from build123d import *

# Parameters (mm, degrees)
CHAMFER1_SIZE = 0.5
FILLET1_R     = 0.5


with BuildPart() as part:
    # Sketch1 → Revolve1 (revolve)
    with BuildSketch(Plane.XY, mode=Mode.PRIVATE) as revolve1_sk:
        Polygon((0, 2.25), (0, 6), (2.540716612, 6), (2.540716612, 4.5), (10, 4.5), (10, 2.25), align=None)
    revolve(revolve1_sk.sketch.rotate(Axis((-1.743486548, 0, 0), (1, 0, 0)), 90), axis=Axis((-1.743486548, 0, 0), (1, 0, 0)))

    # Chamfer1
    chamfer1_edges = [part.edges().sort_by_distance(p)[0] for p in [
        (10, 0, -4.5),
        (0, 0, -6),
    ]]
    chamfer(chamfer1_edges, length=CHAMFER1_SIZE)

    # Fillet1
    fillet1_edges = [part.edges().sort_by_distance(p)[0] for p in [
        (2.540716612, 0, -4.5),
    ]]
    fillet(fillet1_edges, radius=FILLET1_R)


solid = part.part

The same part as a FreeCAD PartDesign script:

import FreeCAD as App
import Part
import Sketcher


def edges_at(feature, points):
    """Names of the edges that pass closest to the given points."""
    edges = feature.Shape.Edges
    near = lambda p: min(range(len(edges)), key=lambda i: edges[i].distToShape(Part.Vertex(*p))[0])
    return sorted({f"Edge{near(p) + 1}" for p in points})


def add_polygon(sketch, points):
    """Adds a closed chain of lines whose ends are joined by coincident constraints."""
    first, n = sketch.GeometryCount, len(points)
    for a, b in zip(points, points[1:] + points[:1]):
        sketch.addGeometry(Part.LineSegment(App.Vector(*a, 0), App.Vector(*b, 0)), False)
    for i in range(n):
        sketch.addConstraint(Sketcher.Constraint("Coincident", first + i, 2, first + (i + 1) % n, 1))

doc = App.newDocument("Part")
body = doc.addObject("PartDesign::Body", "Body")

sketch1 = doc.addObject("Sketcher::SketchObject", "Sketch")
body.addObject(sketch1)
sketch1.AttachmentSupport = (doc.XY_Plane, [""])
sketch1.MapMode = "FlatFace"
add_polygon(sketch1, [(0, 6), (0, 2.2), (10, 2.2), (10, 4.5), (2.5, 4.5), (2.5, 6)])
sketch1.addConstraint(Sketcher.Constraint("Vertical", 0))
sketch1.addConstraint(Sketcher.Constraint("Horizontal", 1))
sketch1.addConstraint(Sketcher.Constraint("Vertical", 2))
sketch1.addConstraint(Sketcher.Constraint("Horizontal", 3))
sketch1.addConstraint(Sketcher.Constraint("Vertical", 4))
sketch1.addConstraint(Sketcher.Constraint("Horizontal", 5))
sketch1.addConstraint(Sketcher.Constraint("PointOnObject", 0, 2, -2))
sketch1.addConstraint(Sketcher.Constraint("DistanceX", 1, 1, 1, 2, 10.0))
sketch1.addConstraint(Sketcher.Constraint("DistanceY", 4, 1, 4, 2, 1.5))
sketch1.addConstraint(Sketcher.Constraint("DistanceY", -1, 1, 4, 2, 6.0))
sketch1.addConstraint(Sketcher.Constraint("DistanceY", 0, 2, 0, 1, 3.75))
sketch1.addConstraint(Sketcher.Constraint("DistanceX", 3, 2, 3, 1, 7.459283))
revolution = doc.addObject("PartDesign::Revolution", "Revolution")
body.addObject(revolution)
revolution.Profile = sketch1
revolution.ReferenceAxis = (sketch1, ["H_Axis"])
revolution.Angle = 360
doc.recompute()

chamfer = doc.addObject("PartDesign::Chamfer", "Chamfer")
body.addObject(chamfer)
chamfer.Base = (revolution, edges_at(revolution, [(10, 0, -4.5), (0, 0, -6)]))
chamfer.Size = 0.5
doc.recompute()

fillet = doc.addObject("PartDesign::Fillet", "Fillet")
body.addObject(fillet)
fillet.Base = (chamfer, edges_at(chamfer, [(2.541, 0, -4.5)]))
fillet.Radius = 0.5

doc.recompute()
